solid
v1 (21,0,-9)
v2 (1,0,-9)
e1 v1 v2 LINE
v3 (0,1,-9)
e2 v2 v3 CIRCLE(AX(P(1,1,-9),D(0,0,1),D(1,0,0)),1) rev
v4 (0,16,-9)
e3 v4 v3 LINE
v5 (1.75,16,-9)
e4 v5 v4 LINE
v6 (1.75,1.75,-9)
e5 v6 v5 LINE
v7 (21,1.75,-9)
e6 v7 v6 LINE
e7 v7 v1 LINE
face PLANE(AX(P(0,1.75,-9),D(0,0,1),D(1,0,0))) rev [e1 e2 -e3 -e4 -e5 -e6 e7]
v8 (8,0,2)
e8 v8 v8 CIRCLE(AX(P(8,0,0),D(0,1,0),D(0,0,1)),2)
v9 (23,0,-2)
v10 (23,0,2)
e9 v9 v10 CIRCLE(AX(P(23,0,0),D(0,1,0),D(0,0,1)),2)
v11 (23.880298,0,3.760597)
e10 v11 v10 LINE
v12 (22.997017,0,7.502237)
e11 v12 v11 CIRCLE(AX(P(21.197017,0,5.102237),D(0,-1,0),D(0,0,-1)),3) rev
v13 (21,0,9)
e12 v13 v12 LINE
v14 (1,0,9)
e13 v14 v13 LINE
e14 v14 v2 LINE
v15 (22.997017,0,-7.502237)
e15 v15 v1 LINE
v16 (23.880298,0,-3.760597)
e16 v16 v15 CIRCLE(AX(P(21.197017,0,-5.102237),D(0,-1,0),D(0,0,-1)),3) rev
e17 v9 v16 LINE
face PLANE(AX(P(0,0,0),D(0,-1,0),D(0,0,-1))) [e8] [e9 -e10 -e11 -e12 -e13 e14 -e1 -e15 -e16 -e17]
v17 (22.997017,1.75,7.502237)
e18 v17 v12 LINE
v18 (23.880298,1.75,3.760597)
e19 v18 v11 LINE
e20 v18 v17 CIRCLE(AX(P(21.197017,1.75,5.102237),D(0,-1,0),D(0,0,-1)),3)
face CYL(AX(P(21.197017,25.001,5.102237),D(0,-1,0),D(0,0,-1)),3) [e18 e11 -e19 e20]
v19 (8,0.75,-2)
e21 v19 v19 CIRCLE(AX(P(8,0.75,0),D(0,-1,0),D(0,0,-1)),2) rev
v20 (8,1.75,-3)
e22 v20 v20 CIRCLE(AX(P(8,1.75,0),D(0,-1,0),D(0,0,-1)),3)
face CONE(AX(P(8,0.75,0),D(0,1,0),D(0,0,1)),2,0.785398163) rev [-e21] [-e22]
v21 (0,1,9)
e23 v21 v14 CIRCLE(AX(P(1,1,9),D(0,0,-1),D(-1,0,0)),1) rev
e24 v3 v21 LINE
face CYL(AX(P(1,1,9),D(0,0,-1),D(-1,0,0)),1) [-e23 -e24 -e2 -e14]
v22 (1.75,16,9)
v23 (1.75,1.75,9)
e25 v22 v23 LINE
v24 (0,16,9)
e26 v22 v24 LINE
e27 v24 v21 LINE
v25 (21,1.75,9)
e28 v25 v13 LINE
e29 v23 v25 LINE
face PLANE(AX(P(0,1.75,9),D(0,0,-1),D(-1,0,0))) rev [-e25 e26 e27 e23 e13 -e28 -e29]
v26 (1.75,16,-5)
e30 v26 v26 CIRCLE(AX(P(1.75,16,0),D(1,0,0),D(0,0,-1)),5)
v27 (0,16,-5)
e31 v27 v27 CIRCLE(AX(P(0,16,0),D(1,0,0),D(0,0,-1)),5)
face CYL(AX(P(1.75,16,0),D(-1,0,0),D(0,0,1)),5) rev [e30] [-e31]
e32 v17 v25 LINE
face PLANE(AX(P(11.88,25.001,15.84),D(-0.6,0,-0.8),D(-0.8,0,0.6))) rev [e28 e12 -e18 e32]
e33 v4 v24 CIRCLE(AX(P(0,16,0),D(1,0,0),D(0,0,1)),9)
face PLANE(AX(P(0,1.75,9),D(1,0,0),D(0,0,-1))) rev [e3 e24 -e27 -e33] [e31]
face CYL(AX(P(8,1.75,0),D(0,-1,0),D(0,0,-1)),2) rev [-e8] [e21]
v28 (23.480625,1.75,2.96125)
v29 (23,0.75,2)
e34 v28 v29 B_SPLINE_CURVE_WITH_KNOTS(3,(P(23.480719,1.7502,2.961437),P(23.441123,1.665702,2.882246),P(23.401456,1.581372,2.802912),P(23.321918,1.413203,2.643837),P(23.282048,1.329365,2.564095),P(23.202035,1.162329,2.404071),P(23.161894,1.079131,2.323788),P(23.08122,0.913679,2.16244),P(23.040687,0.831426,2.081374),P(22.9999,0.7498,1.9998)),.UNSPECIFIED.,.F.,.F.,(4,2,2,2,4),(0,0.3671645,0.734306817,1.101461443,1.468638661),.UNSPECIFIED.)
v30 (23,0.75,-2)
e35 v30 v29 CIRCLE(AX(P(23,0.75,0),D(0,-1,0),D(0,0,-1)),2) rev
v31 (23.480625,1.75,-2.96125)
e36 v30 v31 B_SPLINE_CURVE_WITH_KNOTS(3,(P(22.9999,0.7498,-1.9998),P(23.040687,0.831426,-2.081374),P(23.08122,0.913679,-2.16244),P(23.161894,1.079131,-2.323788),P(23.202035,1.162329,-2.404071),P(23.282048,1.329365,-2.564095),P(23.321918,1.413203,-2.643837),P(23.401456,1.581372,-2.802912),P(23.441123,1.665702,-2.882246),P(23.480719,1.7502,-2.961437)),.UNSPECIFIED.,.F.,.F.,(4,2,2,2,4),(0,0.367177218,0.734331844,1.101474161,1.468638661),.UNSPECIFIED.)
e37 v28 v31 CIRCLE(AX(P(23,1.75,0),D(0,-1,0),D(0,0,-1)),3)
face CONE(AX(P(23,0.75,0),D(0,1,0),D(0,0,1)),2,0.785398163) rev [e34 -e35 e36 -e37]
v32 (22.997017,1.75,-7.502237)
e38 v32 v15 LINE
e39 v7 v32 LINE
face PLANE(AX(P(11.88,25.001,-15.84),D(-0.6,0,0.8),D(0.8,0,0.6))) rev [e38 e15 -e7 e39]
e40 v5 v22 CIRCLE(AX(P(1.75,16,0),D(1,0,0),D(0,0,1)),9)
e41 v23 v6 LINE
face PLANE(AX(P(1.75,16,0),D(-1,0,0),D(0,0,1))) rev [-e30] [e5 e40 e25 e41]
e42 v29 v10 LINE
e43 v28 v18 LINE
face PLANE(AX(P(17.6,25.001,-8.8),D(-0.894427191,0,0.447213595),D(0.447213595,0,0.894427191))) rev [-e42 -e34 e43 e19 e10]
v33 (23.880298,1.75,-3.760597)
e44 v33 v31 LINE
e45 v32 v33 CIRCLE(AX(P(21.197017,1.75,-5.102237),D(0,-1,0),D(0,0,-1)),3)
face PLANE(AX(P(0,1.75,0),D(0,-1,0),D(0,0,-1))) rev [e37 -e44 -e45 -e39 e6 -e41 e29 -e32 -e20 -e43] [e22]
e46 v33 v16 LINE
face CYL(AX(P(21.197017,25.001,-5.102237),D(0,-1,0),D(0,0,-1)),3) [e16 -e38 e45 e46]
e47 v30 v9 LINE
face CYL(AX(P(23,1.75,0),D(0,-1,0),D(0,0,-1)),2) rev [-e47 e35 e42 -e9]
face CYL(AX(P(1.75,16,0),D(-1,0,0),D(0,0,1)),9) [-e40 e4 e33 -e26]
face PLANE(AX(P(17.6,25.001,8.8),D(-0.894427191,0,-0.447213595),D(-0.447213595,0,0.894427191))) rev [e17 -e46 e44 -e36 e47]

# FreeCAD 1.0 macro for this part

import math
import FreeCAD as App
import Part
import Sketcher


def edges_at(feature, points):
    """Names of the edges that pass closest to the given points."""
    edges = feature.Shape.Edges
    near = lambda p: min(range(len(edges)), key=lambda i: edges[i].distToShape(Part.Vertex(*p))[0])
    return sorted({f"Edge{near(p) + 1}" for p in points})


def add_polygon(sketch, points):
    """Adds a closed chain of lines whose ends are joined by coincident constraints."""
    first, n = sketch.GeometryCount, len(points)
    for a, b in zip(points, points[1:] + points[:1]):
        sketch.addGeometry(Part.LineSegment(App.Vector(*a, 0), App.Vector(*b, 0)), False)
    for i in range(n):
        sketch.addConstraint(Sketcher.Constraint("Coincident", first + i, 2, first + (i + 1) % n, 1))

doc = App.newDocument("Part")
params = doc.addObject("Spreadsheet::Sheet", "Params")
for row, (alias, value) in enumerate([
    ("sketch1_diameter", "4 mm"),
    ("sketch1_width", "28 mm"),
    ("sketch1_height", "18 mm"),
    ("pad1_length", "1.75 mm"),
    ("sketch2_diameter", "10 mm"),
    ("sketch2_radius", "9 mm"),
    ("sketch2_width", "16 mm"),
    ("pad2_length", "1.75 mm"),
    ("fillet_radius", "1 mm"),
    ("chamfer_size", "1 mm"),
    ("sketch3_radius", "2 mm"),
    ("sketch3_radius2", "3 mm"),
    ("sketch3_width", "7 mm"),
    ("sketch3_width2", "3 mm"),
    ("sketch3_height", "9 mm"),
    ("sketch4_radius", "2 mm"),
    ("sketch4_radius2", "3 mm"),
    ("sketch4_width", "3 mm"),
    ("sketch4_width2", "7 mm"),
    ("sketch4_height", "9 mm"),
], start=1):
    params.set(f"A{row}", alias)
    params.set(f"B{row}", "=" + value)
    params.setAlias(f"B{row}", alias)

body = doc.addObject("PartDesign::Body", "Body")

# Sketch on XZ plane
sketch1 = body.newObject("Sketcher::SketchObject", "Sketch")
sketch1.AttachmentSupport = (doc.getObject("XZ_Plane"), [""])
sketch1.MapMode = "FlatFace"
add_polygon(sketch1, [(0, -9), (0, 9), (28, 9), (28, -9)])  # lines 0-3
sketch1.addGeometry(Part.Circle(App.Vector(8, 0, 0), App.Vector(0, 0, 1), 2), False)  # 4
sketch1.addGeometry(Part.Circle(App.Vector(23, 0, 0), App.Vector(0, 0, 1), 2), False)  # 5
sketch1.addConstraint(Sketcher.Constraint("Vertical", 0))
sketch1.addConstraint(Sketcher.Constraint("Horizontal", 1))
sketch1.addConstraint(Sketcher.Constraint("Vertical", 2))
sketch1.addConstraint(Sketcher.Constraint("Horizontal", 3))
sketch1.addConstraint(Sketcher.Constraint("Equal", 4, 5))
sketch1.addConstraint(Sketcher.Constraint("Symmetric", 0, 2, 3, 2, -1, 1))
sketch1.addConstraint(Sketcher.Constraint("PointOnObject", 4, 3, -1))
sketch1.addConstraint(Sketcher.Constraint("PointOnObject", 5, 3, -1))
sketch1.addConstraint(Sketcher.Constraint("Diameter", 4, 4.0))
sketch1.addConstraint(Sketcher.Constraint("DistanceX", 1, 1, 1, 2, 28.0))
sketch1.addConstraint(Sketcher.Constraint("DistanceY", 0, 1, 0, 2, 18.0))
sketch1.addConstraint(Sketcher.Constraint("DistanceX", -1, 1, 4, 3, 8.0))
sketch1.addConstraint(Sketcher.Constraint("DistanceX", -1, 1, 5, 3, 23.0))
sketch1.setExpression("Constraints[12]", "Params.sketch1_diameter")
sketch1.setExpression("Constraints[13]", "Params.sketch1_width")
sketch1.setExpression("Constraints[14]", "Params.sketch1_height")
pad1 = body.newObject("PartDesign::Pad", "Pad")
pad1.Profile = sketch1
pad1.setExpression("Length", "Params.pad1_length")
pad1.Reversed = True

# Sketch on YZ plane
sketch2 = body.newObject("Sketcher::SketchObject", "Sketch001")
sketch2.AttachmentSupport = (doc.getObject("YZ_Plane"), [""])
sketch2.MapMode = "FlatFace"
sketch2.addGeometry(Part.LineSegment(App.Vector(16, 9, 0), App.Vector(0, 9, 0)), False)
sketch2.addGeometry(Part.LineSegment(App.Vector(0, 9, 0), App.Vector(0, -9, 0)), False)
sketch2.addGeometry(Part.LineSegment(App.Vector(0, -9, 0), App.Vector(16, -9, 0)), False)
sketch2.addGeometry(Part.ArcOfCircle(Part.Circle(App.Vector(16, 0, 0), App.Vector(0, 0, 1), 9), math.radians(-90), math.radians(90)), False)
sketch2.addGeometry(Part.Circle(App.Vector(16, 0, 0), App.Vector(0, 0, 1), 5), False)
sketch2.addConstraint(Sketcher.Constraint("Coincident", 0, 2, 1, 1))
sketch2.addConstraint(Sketcher.Constraint("Coincident", 1, 2, 2, 1))
sketch2.addConstraint(Sketcher.Constraint("Tangent", 2, 2, 3, 1))
sketch2.addConstraint(Sketcher.Constraint("Tangent", 3, 2, 0, 1))
sketch2.addConstraint(Sketcher.Constraint("Horizontal", 0))
sketch2.addConstraint(Sketcher.Constraint("Vertical", 1))
sketch2.addConstraint(Sketcher.Constraint("Horizontal", 2))
sketch2.addConstraint(Sketcher.Constraint("Coincident", 4, 3, 3, 3))
sketch2.addConstraint(Sketcher.Constraint("Symmetric", 0, 2, 1, 2, -1, 1))
sketch2.addConstraint(Sketcher.Constraint("Diameter", 4, 10.0))
sketch2.addConstraint(Sketcher.Constraint("Radius", 3, 9.0))
sketch2.addConstraint(Sketcher.Constraint("DistanceX", 0, 2, 0, 1, 16.0))
sketch2.setExpression("Constraints[9]", "Params.sketch2_diameter")
sketch2.setExpression("Constraints[10]", "Params.sketch2_radius")
sketch2.setExpression("Constraints[11]", "Params.sketch2_width")
pad2 = body.newObject("PartDesign::Pad", "Pad001")
pad2.Profile = sketch2
pad2.setExpression("Length", "Params.pad2_length")
doc.recompute()

fillet = body.newObject("PartDesign::Fillet", "Fillet")
fillet.Base = (pad2, edges_at(pad2, [(0, 0, 0)]))
fillet.setExpression("Radius", "Params.fillet_radius")
doc.recompute()

chamfer = body.newObject("PartDesign::Chamfer", "Chamfer")
chamfer.Base = (fillet, edges_at(fillet, [(8, 1.75, -2), (23, 1.75, -2)]))
chamfer.setExpression("Size", "Params.chamfer_size")

# Sketch on XZ plane
sketch3 = body.newObject("Sketcher::SketchObject", "Sketch002")
sketch3.AttachmentSupport = (doc.getObject("XZ_Plane"), [""])
sketch3.MapMode = "FlatFace"
sketch3.addGeometry(Part.ArcOfCircle(Part.Circle(App.Vector(23, 0, 0), App.Vector(0, 0, 1), 2), math.radians(-90), math.radians(0)), False)
sketch3.addGeometry(Part.LineSegment(App.Vector(23, -2, 0), App.Vector(23.9, -3.8, 0)), False)
sketch3.addGeometry(Part.ArcOfCircle(Part.Circle(App.Vector(21.2, -5.1, 0), App.Vector(0, 0, 1), 3), math.radians(-53), math.radians(27)), False)
sketch3.addGeometry(Part.LineSegment(App.Vector(23, -7.5, 0), App.Vector(21, -9, 0)), False)
sketch3.addGeometry(Part.LineSegment(App.Vector(21, -9, 0), App.Vector(28, -9, 0)), False)
sketch3.addGeometry(Part.LineSegment(App.Vector(28, -9, 0), App.Vector(28, 0, 0)), False)
sketch3.addGeometry(Part.LineSegment(App.Vector(28, 0, 0), App.Vector(25, 0, 0)), False)
sketch3.addConstraint(Sketcher.Constraint("Coincident", 0, 1, 1, 1))
sketch3.addConstraint(Sketcher.Constraint("Tangent", 1, 2, 2, 2))
sketch3.addConstraint(Sketcher.Constraint("Tangent", 2, 1, 3, 1))
sketch3.addConstraint(Sketcher.Constraint("Coincident", 3, 2, 4, 1))
sketch3.addConstraint(Sketcher.Constraint("Coincident", 4, 2, 5, 1))
sketch3.addConstraint(Sketcher.Constraint("Coincident", 5, 2, 6, 1))
sketch3.addConstraint(Sketcher.Constraint("Coincident", 6, 2, 0, 2))
sketch3.addConstraint(Sketcher.Constraint("Horizontal", 4))
sketch3.addConstraint(Sketcher.Constraint("Vertical", 5))
sketch3.addConstraint(Sketcher.Constraint("Horizontal", 6))
sketch3.addConstraint(Sketcher.Constraint("PointOnObject", 0, 3, -1))
sketch3.addConstraint(Sketcher.Constraint("PointOnObject", 5, 2, -1))
sketch3.addConstraint(Sketcher.Constraint("Radius", 0, 2.0))
sketch3.addConstraint(Sketcher.Constraint("Radius", 2, 3.0))
sketch3.addConstraint(Sketcher.Constraint("DistanceX", 4, 1, 4, 2, 7.0))
sketch3.addConstraint(Sketcher.Constraint("DistanceX", 6, 2, 6, 1, 3.0))
sketch3.addConstraint(Sketcher.Constraint("DistanceY", 5, 1, 5, 2, 9.0))
sketch3.addConstraint(Sketcher.Constraint("DistanceX", -1, 1, 0, 3, 23.0))
sketch3.addConstraint(Sketcher.Constraint("DistanceX", -1, 1, 0, 1, 23.0))
sketch3.addConstraint(Sketcher.Constraint("DistanceX", 2, 3, 2, 1, 1.8))
sketch3.addConstraint(Sketcher.Constraint("DistanceX", -1, 1, 1, 2, 23.880298))
sketch3.setExpression("Constraints[12]", "Params.sketch3_radius")
sketch3.setExpression("Constraints[13]", "Params.sketch3_radius2")
sketch3.setExpression("Constraints[14]", "Params.sketch3_width")
sketch3.setExpression("Constraints[15]", "Params.sketch3_width2")
sketch3.setExpression("Constraints[16]", "Params.sketch3_height")
pocket1 = body.newObject("PartDesign::Pocket", "Pocket")
pocket1.Profile = sketch3
pocket1.Type = "UpToFirst"

# Sketch on XZ plane
sketch4 = body.newObject("Sketcher::SketchObject", "Sketch003")
sketch4.AttachmentSupport = (doc.getObject("XZ_Plane"), [""])
sketch4.MapMode = "FlatFace"
sketch4.addGeometry(Part.ArcOfCircle(Part.Circle(App.Vector(23, 0, 0), App.Vector(0, 0, 1), 2), math.radians(0), math.radians(90)), False)
sketch4.addGeometry(Part.LineSegment(App.Vector(25, 0, 0), App.Vector(28, 0, 0)), False)
sketch4.addGeometry(Part.LineSegment(App.Vector(28, 0, 0), App.Vector(28, 9, 0)), False)
sketch4.addGeometry(Part.LineSegment(App.Vector(28, 9, 0), App.Vector(21, 9, 0)), False)
sketch4.addGeometry(Part.LineSegment(App.Vector(21, 9, 0), App.Vector(23, 7.5, 0)), False)
sketch4.addGeometry(Part.ArcOfCircle(Part.Circle(App.Vector(21.2, 5.1, 0), App.Vector(0, 0, 1), 3), math.radians(-27), math.radians(53)), False)
sketch4.addGeometry(Part.LineSegment(App.Vector(23.9, 3.8, 0), App.Vector(23, 2, 0)), False)
sketch4.addConstraint(Sketcher.Constraint("Coincident", 0, 1, 1, 1))
sketch4.addConstraint(Sketcher.Constraint("Coincident", 1, 2, 2, 1))
sketch4.addConstraint(Sketcher.Constraint("Coincident", 2, 2, 3, 1))
sketch4.addConstraint(Sketcher.Constraint("Coincident", 3, 2, 4, 1))
sketch4.addConstraint(Sketcher.Constraint("Tangent", 4, 2, 5, 2))
sketch4.addConstraint(Sketcher.Constraint("Tangent", 5, 1, 6, 1))
sketch4.addConstraint(Sketcher.Constraint("Coincident", 6, 2, 0, 2))
sketch4.addConstraint(Sketcher.Constraint("Horizontal", 1))
sketch4.addConstraint(Sketcher.Constraint("Vertical", 2))
sketch4.addConstraint(Sketcher.Constraint("Horizontal", 3))
sketch4.addConstraint(Sketcher.Constraint("PointOnObject", 0, 3, -1))
sketch4.addConstraint(Sketcher.Constraint("PointOnObject", 0, 1, -1))
sketch4.addConstraint(Sketcher.Constraint("Vertical", 0, 3, 6, 2))
sketch4.addConstraint(Sketcher.Constraint("Radius", 0, 2.0))
sketch4.addConstraint(Sketcher.Constraint("Radius", 5, 3.0))
sketch4.addConstraint(Sketcher.Constraint("DistanceX", 1, 1, 1, 2, 3.0))
sketch4.addConstraint(Sketcher.Constraint("DistanceX", 3, 2, 3, 1, 7.0))
sketch4.addConstraint(Sketcher.Constraint("DistanceY", 2, 1, 2, 2, 9.0))
sketch4.addConstraint(Sketcher.Constraint("DistanceX", -1, 1, 0, 3, 23.0))
sketch4.addConstraint(Sketcher.Constraint("DistanceX", 5, 3, 4, 2, 1.8))
sketch4.addConstraint(Sketcher.Constraint("DistanceX", -1, 1, 5, 1, 23.880298))
sketch4.setExpression("Constraints[13]", "Params.sketch4_radius")
sketch4.setExpression("Constraints[14]", "Params.sketch4_radius2")
sketch4.setExpression("Constraints[15]", "Params.sketch4_width")
sketch4.setExpression("Constraints[16]", "Params.sketch4_width2")
sketch4.setExpression("Constraints[17]", "Params.sketch4_height")
pocket2 = body.newObject("PartDesign::Pocket", "Pocket001")
pocket2.Profile = sketch4
pocket2.Type = "UpToFirst"

doc.recompute()
